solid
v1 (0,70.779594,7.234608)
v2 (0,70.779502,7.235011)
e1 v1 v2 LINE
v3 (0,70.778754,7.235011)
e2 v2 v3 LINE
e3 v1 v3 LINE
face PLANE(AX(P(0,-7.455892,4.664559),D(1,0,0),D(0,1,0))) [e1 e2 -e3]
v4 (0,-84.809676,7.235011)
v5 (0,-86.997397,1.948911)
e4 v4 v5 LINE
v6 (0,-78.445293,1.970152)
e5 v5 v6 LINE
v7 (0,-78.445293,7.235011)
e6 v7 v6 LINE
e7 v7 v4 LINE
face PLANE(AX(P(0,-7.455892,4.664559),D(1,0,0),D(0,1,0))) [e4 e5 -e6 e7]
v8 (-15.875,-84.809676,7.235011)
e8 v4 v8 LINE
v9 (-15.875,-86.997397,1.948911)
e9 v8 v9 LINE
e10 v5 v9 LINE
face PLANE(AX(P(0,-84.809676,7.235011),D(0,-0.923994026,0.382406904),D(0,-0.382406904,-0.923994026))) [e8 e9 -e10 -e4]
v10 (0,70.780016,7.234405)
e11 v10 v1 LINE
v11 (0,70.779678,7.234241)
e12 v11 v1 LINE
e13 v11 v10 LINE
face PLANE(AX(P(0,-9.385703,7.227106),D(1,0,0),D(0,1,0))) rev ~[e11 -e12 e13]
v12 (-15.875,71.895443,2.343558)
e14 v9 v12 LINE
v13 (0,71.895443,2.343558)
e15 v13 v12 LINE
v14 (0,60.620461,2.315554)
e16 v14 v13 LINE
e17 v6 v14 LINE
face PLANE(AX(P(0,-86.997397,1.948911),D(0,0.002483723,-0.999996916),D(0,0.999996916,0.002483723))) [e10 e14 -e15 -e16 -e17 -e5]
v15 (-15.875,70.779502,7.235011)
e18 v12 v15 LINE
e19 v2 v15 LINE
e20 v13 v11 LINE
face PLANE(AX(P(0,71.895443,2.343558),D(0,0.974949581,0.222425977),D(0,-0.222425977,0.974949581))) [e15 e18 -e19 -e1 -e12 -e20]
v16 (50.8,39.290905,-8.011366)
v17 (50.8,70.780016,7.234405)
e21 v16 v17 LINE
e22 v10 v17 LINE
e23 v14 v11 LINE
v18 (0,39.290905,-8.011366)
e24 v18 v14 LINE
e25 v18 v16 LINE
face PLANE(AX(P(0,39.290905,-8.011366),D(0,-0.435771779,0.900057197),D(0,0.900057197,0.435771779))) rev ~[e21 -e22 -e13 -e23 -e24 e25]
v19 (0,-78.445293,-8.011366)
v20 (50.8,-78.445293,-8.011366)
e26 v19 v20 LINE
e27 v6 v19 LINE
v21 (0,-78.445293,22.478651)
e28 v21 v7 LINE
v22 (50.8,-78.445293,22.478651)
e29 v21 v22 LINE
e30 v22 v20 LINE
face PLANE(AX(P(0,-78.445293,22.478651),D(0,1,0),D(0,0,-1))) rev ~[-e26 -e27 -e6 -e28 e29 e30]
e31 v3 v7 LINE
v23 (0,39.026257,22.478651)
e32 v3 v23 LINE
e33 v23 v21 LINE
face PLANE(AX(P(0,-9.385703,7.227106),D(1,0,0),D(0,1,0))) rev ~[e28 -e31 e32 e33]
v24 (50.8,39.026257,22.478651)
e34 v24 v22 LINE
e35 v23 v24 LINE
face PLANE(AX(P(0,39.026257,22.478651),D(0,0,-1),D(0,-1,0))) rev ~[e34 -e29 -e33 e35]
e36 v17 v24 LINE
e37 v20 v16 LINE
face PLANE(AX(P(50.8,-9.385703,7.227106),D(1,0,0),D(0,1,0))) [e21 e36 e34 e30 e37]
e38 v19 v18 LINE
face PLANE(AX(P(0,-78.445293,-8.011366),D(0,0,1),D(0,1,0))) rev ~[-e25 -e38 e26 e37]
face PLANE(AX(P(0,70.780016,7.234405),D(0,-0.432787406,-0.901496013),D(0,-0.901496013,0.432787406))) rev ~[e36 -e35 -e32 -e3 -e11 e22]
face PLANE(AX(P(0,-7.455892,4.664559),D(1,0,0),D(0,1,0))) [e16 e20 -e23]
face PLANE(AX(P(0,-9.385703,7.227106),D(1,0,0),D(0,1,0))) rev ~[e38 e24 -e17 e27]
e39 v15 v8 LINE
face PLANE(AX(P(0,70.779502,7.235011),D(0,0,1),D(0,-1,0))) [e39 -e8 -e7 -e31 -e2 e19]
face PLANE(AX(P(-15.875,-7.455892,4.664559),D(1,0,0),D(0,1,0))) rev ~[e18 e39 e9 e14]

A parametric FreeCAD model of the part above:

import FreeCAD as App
import Part
import Sketcher
from FreeCAD import Vector
Q = App.Units.Quantity


def add_polygon(sketch, points):
    """Adds a closed chain of lines whose ends are joined by coincident constraints."""
    first, n = sketch.GeometryCount, len(points)
    for a, b in zip(points, points[1:] + points[:1]):
        sketch.addGeometry(Part.LineSegment(App.Vector(*a, 0), App.Vector(*b, 0)), False)
    for i in range(n):
        sketch.addConstraint(Sketcher.Constraint("Coincident", first + i, 2, first + (i + 1) % n, 1))

doc = App.newDocument("Part")
body = doc.addObject("PartDesign::Body", "Body")

# Sketch on YZ plane
sketch1 = doc.addObject("Sketcher::SketchObject", "Sketch")
body.addObject(sketch1)
sketch1.AttachmentSupport = (doc.YZ_Plane, [""])
sketch1.MapMode = "FlatFace"
add_polygon(sketch1, [(-78, 22), (-78, -8), (39, -8), (71, 7), (39, 22)])  # lines 0-4
sketch1.addConstraint([
    Sketcher.Constraint("Vertical", 0),
    Sketcher.Constraint("Horizontal", 1),
    Sketcher.Constraint("Horizontal", 4),
    Sketcher.Constraint("DistanceX", 1, 1, 1, 2, 117.736198),
    Sketcher.Constraint("DistanceX", 4, 2, 4, 1, 117.47155),
    Sketcher.Constraint("DistanceY", 0, 2, 0, 1, 30.490017),
    Sketcher.Constraint("DistanceY", -1, 1, 3, 2, 22.478651),
    Sketcher.Constraint("DistanceX", 1, 2, 2, 2, 31.489111),
    Sketcher.Constraint("DistanceY", 1, 2, 2, 2, 15.245771),
    Sketcher.Constraint("DistanceX", 0, 2, -1, 1, 78.445293),
])
pad1 = doc.addObject("PartDesign::Pad", "Pad")
body.addObject(pad1)
pad1.Profile = sketch1
pad1.Length = Q("2 in")

# Sketch on YZ plane
sketch2 = doc.addObject("Sketcher::SketchObject", "Sketch001")
body.addObject(sketch2)
sketch2.AttachmentSupport = (doc.YZ_Plane, [""])
sketch2.MapMode = "FlatFace"
add_polygon(sketch2, [(72, 2), (71, 7), (-85, 7), (-87, 2)])  # lines 0-3
sketch2.addConstraint([
    Sketcher.Constraint("Horizontal", 1),
    Sketcher.Constraint("DistanceX", 1, 2, 1, 1, 155.589178),
    Sketcher.Constraint("DistanceX", -1, 1, 0, 2, 70.779502),
    Sketcher.Constraint("DistanceY", 2, 2, 1, 2, 5.2861),
    Sketcher.Constraint("DistanceX", 2, 2, 0, 2, 157.776899),
    Sketcher.Constraint("Distance", 3, 158.89333),
    Sketcher.Constraint("DistanceY", -1, 1, 0, 2, 7.235011),
    Sketcher.Constraint("Distance", 0, 5.017134),
])
pad2 = doc.addObject("PartDesign::Pad", "Pad001")
body.addObject(pad2)
pad2.Profile = sketch2
pad2.Length = Q("0.625 in")
pad2.Reversed = True

doc.recompute()
